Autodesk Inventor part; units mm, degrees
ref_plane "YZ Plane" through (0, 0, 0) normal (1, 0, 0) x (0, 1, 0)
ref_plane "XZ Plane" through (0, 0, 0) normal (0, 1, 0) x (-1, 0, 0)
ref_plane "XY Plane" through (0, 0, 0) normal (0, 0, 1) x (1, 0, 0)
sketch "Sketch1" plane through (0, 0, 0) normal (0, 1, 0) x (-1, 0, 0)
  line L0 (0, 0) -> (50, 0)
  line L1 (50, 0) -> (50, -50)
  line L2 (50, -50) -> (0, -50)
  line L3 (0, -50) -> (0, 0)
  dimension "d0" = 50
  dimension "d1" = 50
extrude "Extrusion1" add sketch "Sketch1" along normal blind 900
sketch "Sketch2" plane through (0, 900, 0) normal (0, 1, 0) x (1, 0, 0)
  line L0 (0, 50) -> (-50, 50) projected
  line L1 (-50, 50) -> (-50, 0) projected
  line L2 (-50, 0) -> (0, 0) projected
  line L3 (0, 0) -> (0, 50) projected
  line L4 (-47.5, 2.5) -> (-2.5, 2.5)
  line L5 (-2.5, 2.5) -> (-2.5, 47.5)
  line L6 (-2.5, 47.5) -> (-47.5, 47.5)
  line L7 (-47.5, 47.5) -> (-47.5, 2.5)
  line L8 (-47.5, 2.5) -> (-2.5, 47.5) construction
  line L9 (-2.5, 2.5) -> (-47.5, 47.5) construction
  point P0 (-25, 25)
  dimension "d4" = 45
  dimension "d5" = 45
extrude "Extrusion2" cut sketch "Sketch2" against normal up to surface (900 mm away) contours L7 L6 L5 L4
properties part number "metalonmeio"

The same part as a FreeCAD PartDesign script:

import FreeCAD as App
import Part
import Sketcher

doc = App.newDocument("Part")
params = doc.addObject("Spreadsheet::Sheet", "Params")
for row, (alias, value) in enumerate([
    ("sketch1_width", "50 mm"),
    ("pad1_length", "900 mm"),
    ("sketch2_width", "45 mm"),
    ("pocket1_length", "900 mm"),
], start=1):
    params.set(f"A{row}", alias)
    params.set(f"B{row}", "=" + value)
    params.setAlias(f"B{row}", alias)

body = doc.addObject("PartDesign::Body", "Body")

# Sketch on XZ plane
sketch1 = body.newObject("Sketcher::SketchObject", "Sketch")
sketch1.AttachmentSupport = (doc.getObject("XZ_Plane"), [""])
sketch1.MapMode = "FlatFace"
sketch1.addGeometry([
    Part.LineSegment(App.Vector(-50, 0, 0), App.Vector(0, 0, 0)),
    Part.LineSegment(App.Vector(0, 0, 0), App.Vector(0, -50, 0)),
    Part.LineSegment(App.Vector(0, -50, 0), App.Vector(-50, -50, 0)),
    Part.LineSegment(App.Vector(-50, -50, 0), App.Vector(-50, 0, 0)),
], False)
sketch1.addConstraint([
    Sketcher.Constraint("Coincident", 0, 2, 1, 1),
    Sketcher.Constraint("Coincident", 1, 2, 2, 1),
    Sketcher.Constraint("Coincident", 2, 2, 3, 1),
    Sketcher.Constraint("Coincident", 3, 2, 0, 1),
    Sketcher.Constraint("Horizontal", 0),
    Sketcher.Constraint("Vertical", 1),
    Sketcher.Constraint("Horizontal", 2),
    Sketcher.Constraint("Vertical", 3),
    Sketcher.Constraint("Coincident", 0, 2, -1, 1),
    Sketcher.Constraint("Equal", 2, 1),
    Sketcher.Constraint("DistanceX", 0, 1, 0, 2, 50.0),
])
sketch1.setExpression("Constraints[10]", "Params.sketch1_width")
pad1 = body.newObject("PartDesign::Pad", "Pad")
pad1.Profile = sketch1
pad1.setExpression("Length", "Params.pad1_length")
pad1.Reversed = True

# Sketch on XZ plane
sketch2 = body.newObject("Sketcher::SketchObject", "Sketch001")
sketch2.AttachmentSupport = (doc.getObject("XZ_Plane"), [""])
sketch2.MapMode = "FlatFace"
sketch2.AttachmentOffset = App.Placement(App.Vector(0, 0, -900), App.Rotation())
sketch2.addGeometry([
    Part.LineSegment(App.Vector(-47.5, -47.5, 0), App.Vector(-47.5, -2.5, 0)),
    Part.LineSegment(App.Vector(-47.5, -2.5, 0), App.Vector(-2.5, -2.5, 0)),
    Part.LineSegment(App.Vector(-2.5, -2.5, 0), App.Vector(-2.5, -47.5, 0)),
    Part.LineSegment(App.Vector(-2.5, -47.5, 0), App.Vector(-47.5, -47.5, 0)),
], False)
sketch2.addConstraint([
    Sketcher.Constraint("Coincident", 0, 2, 1, 1),
    Sketcher.Constraint("Coincident", 1, 2, 2, 1),
    Sketcher.Constraint("Coincident", 2, 2, 3, 1),
    Sketcher.Constraint("Coincident", 3, 2, 0, 1),
    Sketcher.Constraint("Vertical", 0),
    Sketcher.Constraint("Horizontal", 1),
    Sketcher.Constraint("Vertical", 2),
    Sketcher.Constraint("Horizontal", 3),
    Sketcher.Constraint("Equal", 3, 0),
    Sketcher.Constraint("DistanceX", 1, 1, 1, 2, 45.0),
    Sketcher.Constraint("DistanceX", 0, 2, -1, 1, 47.5),
    Sketcher.Constraint("DistanceY", 0, 2, -1, 1, 2.5),
])
sketch2.setExpression("Constraints[9]", "Params.sketch2_width")
pocket1 = body.newObject("PartDesign::Pocket", "Pocket")
pocket1.Profile = sketch2
pocket1.setExpression("Length", "Params.pocket1_length")
pocket1.Reversed = True

doc.recompute()
